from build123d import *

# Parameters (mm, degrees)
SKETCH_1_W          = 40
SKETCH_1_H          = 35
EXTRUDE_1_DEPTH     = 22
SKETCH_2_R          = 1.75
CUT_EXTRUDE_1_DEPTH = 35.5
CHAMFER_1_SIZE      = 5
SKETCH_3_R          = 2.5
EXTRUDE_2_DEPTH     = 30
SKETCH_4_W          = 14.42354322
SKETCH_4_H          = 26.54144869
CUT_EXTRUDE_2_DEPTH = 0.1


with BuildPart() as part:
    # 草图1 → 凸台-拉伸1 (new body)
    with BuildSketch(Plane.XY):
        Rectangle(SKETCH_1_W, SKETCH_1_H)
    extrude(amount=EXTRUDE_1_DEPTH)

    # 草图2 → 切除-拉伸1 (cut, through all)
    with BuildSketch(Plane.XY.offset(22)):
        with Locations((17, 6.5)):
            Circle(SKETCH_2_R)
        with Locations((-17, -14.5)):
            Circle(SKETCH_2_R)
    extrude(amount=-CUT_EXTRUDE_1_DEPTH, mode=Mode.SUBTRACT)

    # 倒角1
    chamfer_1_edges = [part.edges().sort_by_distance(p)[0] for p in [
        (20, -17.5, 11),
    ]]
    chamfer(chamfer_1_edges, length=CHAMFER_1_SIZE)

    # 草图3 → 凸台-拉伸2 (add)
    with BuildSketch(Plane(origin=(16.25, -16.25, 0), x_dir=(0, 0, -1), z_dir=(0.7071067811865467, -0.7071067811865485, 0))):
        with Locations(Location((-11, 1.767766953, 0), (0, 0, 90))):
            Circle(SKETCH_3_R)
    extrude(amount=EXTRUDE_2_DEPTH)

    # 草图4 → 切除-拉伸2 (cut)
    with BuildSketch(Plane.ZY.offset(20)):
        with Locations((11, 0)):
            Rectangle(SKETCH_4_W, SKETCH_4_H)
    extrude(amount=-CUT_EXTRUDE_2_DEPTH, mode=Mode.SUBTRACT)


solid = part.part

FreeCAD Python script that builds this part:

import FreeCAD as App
import Part
import Sketcher
from FreeCAD import Vector


def edges_at(feature, points):
    """Names of the edges that pass closest to the given points."""
    edges = feature.Shape.Edges
    near = lambda p: min(range(len(edges)), key=lambda i: edges[i].distToShape(Part.Vertex(*p))[0])
    return sorted({f"Edge{near(p) + 1}" for p in points})


def add_polygon(sketch, points):
    """Adds a closed chain of lines whose ends are joined by coincident constraints."""
    first, n = sketch.GeometryCount, len(points)
    for a, b in zip(points, points[1:] + points[:1]):
        sketch.addGeometry(Part.LineSegment(App.Vector(*a, 0), App.Vector(*b, 0)), False)
    for i in range(n):
        sketch.addConstraint(Sketcher.Constraint("Coincident", first + i, 2, first + (i + 1) % n, 1))

doc = App.newDocument("Part")
body = doc.addObject("PartDesign::Body", "Body")

# Sketch on XY plane
sketch1 = body.newObject("Sketcher::SketchObject", "Sketch")
sketch1.AttachmentSupport = (doc.getObject("XY_Plane"), [""])
sketch1.MapMode = "FlatFace"
add_polygon(sketch1, [(-20, 18), (-20, -18), (20, -18), (20, 18)])  # lines 0-3
sketch1.addConstraint(Sketcher.Constraint("Vertical", 0))
sketch1.addConstraint(Sketcher.Constraint("Horizontal", 1))
sketch1.addConstraint(Sketcher.Constraint("Vertical", 2))
sketch1.addConstraint(Sketcher.Constraint("Horizontal", 3))
sketch1.addConstraint(Sketcher.Constraint("Symmetric", 0, 2, 2, 2, -1, 1))
sketch1.addConstraint(Sketcher.Constraint("DistanceX", 1, 1, 1, 2, 40.0))
sketch1.addConstraint(Sketcher.Constraint("DistanceY", 0, 2, 0, 1, 35.0))
pad1 = body.newObject("PartDesign::Pad", "Pad")
pad1.Profile = sketch1
pad1.Length = 22

# Sketch on XY plane
sketch2 = body.newObject("Sketcher::SketchObject", "Sketch001")
sketch2.AttachmentSupport = (doc.getObject("XY_Plane"), [""])
sketch2.MapMode = "FlatFace"
sketch2.AttachmentOffset = App.Placement(Vector(0, 0, 22), App.Rotation())
sketch2.addGeometry(Part.Circle(Vector(17, 6.5, 0), Vector(0, 0, 1), 1.8), False)
sketch2.addGeometry(Part.Circle(Vector(-17, -14.5, 0), Vector(0, 0, 1), 1.8), False)
sketch2.addConstraint(Sketcher.Constraint("Equal", 0, 1))
sketch2.addConstraint(Sketcher.Constraint("Diameter", 0, 3.5))
sketch2.addConstraint(Sketcher.Constraint("DistanceX", -1, 1, 0, 3, 17.0))
sketch2.addConstraint(Sketcher.Constraint("DistanceX", 1, 3, -1, 1, 17.0))
sketch2.addConstraint(Sketcher.Constraint("DistanceY", 1, 3, 0, 3, 21.0))
sketch2.addConstraint(Sketcher.Constraint("DistanceY", -1, 1, 0, 3, 6.5))
pocket1 = body.newObject("PartDesign::Pocket", "Pocket")
pocket1.Profile = sketch2
pocket1.Type = "ThroughAll"
doc.recompute()

chamfer = body.newObject("PartDesign::Chamfer", "Chamfer")
chamfer.Base = (pocket1, edges_at(pocket1, [(20, -17.5, 11)]))
chamfer.Size = 5

# Sketch on an angled plane
sketch3 = body.newObject("Sketcher::SketchObject", "Sketch002")
sketch3.Placement = App.Placement(Vector(16.25, -16.25, 0), App.Rotation(Vector(0, 0, -1), Vector(0.707106781, 0.707106781, 0), Vector(0.707106781, -0.707106781, 0), "ZXY"))
sketch3.addGeometry(Part.Circle(Vector(-11, 1.8, 0), Vector(0, 0, 1), 2.5), False)
sketch3.addConstraint(Sketcher.Constraint("Diameter", 0, 5.0))
sketch3.addConstraint(Sketcher.Constraint("DistanceX", 0, 3, -1, 1, 11.0))
sketch3.addConstraint(Sketcher.Constraint("DistanceY", -1, 1, 0, 3, 1.767767))
pad2 = body.newObject("PartDesign::Pad", "Pad001")
pad2.Profile = sketch3
pad2.Length = 30

# Sketch on YZ plane
sketch4 = body.newObject("Sketcher::SketchObject", "Sketch003")
sketch4.AttachmentSupport = (doc.getObject("YZ_Plane"), [""])
sketch4.MapMode = "FlatFace"
sketch4.AttachmentOffset = App.Placement(Vector(0, 0, -20), App.Rotation())
add_polygon(sketch4, [(13, 4), (-13, 4), (-13, 18), (13, 18)])  # lines 0-3
sketch4.addConstraint(Sketcher.Constraint("Horizontal", 0))
sketch4.addConstraint(Sketcher.Constraint("Vertical", 1))
sketch4.addConstraint(Sketcher.Constraint("Horizontal", 2))
sketch4.addConstraint(Sketcher.Constraint("Vertical", 3))
sketch4.addConstraint(Sketcher.Constraint("DistanceX", 0, 2, 0, 1, 26.541449))
sketch4.addConstraint(Sketcher.Constraint("DistanceY", 1, 1, 1, 2, 14.423543))
sketch4.addConstraint(Sketcher.Constraint("DistanceY", -1, 1, 0, 2, 3.788228))
sketch4.addConstraint(Sketcher.Constraint("DistanceX", 0, 2, -1, 1, 13.270724))
pocket2 = body.newObject("PartDesign::Pocket", "Pocket001")
pocket2.Profile = sketch4
pocket2.Length = 0.1
pocket2.Reversed = True

doc.recompute()
